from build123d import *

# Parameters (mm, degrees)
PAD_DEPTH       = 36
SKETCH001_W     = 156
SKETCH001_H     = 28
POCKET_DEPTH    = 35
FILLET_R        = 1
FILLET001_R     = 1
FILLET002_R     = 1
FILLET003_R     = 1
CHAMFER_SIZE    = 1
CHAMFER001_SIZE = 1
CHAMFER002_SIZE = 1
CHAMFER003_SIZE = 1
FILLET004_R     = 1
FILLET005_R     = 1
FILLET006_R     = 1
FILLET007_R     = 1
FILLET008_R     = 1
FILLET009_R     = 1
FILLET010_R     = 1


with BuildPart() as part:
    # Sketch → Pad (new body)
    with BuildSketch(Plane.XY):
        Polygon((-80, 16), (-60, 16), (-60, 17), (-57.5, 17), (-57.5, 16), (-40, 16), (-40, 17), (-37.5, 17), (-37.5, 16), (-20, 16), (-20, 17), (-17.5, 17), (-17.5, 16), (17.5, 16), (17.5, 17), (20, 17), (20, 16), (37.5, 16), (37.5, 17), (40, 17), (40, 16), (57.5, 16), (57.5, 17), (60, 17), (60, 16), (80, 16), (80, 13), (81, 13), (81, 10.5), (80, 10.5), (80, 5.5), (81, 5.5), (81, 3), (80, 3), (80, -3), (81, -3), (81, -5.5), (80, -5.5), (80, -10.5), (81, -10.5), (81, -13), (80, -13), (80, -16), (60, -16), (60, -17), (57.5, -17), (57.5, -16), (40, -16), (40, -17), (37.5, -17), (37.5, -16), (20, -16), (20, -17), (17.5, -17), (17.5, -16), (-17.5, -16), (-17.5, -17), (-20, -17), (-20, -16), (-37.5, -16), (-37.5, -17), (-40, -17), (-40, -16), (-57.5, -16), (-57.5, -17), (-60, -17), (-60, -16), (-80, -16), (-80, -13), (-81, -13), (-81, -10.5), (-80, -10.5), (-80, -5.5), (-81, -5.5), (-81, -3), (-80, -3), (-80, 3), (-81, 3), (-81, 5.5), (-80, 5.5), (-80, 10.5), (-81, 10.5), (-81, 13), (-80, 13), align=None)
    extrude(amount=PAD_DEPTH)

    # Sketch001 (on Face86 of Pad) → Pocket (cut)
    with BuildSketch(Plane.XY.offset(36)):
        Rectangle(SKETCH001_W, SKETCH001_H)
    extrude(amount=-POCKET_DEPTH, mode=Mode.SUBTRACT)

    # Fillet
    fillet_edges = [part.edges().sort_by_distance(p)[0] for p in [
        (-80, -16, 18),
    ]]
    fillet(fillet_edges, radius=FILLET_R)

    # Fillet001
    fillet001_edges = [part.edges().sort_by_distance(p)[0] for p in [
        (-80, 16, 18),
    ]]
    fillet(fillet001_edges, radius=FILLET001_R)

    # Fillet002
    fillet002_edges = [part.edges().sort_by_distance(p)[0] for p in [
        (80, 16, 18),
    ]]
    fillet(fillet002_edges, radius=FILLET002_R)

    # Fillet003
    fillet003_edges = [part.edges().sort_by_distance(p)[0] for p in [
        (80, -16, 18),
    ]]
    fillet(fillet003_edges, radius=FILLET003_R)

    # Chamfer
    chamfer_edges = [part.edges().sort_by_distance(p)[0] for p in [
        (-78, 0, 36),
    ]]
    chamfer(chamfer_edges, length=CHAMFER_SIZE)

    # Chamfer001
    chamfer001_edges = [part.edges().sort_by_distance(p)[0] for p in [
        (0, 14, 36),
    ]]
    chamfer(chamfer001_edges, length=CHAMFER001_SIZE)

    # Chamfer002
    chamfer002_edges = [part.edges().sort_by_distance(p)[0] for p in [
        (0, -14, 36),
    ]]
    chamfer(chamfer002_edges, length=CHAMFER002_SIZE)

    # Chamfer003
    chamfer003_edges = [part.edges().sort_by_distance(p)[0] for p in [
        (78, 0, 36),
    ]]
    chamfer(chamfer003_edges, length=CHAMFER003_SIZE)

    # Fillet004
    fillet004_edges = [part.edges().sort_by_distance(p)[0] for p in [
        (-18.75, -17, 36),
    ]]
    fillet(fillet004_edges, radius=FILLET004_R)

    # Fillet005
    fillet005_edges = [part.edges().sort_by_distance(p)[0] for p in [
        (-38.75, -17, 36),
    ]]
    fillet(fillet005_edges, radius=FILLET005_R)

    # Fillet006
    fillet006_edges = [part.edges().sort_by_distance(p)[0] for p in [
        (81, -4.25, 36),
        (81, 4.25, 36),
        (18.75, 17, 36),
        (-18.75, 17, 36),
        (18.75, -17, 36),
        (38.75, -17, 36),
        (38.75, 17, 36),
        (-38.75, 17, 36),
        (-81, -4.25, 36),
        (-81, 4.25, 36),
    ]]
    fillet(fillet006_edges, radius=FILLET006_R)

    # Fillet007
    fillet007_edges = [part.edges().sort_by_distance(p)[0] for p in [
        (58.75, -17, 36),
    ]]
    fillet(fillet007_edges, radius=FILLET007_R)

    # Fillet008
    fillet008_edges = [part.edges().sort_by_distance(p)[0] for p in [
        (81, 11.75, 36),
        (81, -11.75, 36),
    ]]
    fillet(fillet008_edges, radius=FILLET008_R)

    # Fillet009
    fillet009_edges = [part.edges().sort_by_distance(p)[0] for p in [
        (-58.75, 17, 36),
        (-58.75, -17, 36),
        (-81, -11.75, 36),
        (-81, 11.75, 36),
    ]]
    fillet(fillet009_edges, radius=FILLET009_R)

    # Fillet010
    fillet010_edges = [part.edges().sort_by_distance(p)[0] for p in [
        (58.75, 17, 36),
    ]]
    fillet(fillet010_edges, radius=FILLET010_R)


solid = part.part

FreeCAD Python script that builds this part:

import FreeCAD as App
import Part
import Sketcher

V = App.Vector
Q = App.Units.Quantity


def edges_at(feature, points):
    """Names of the edges that pass closest to the given points."""
    edges = feature.Shape.Edges
    near = lambda p: min(range(len(edges)), key=lambda i: edges[i].distToShape(Part.Vertex(*p))[0])
    return sorted({f"Edge{near(p) + 1}" for p in points})

doc = App.newDocument("Part")
params = doc.addObject("Spreadsheet::Sheet", "Params")
for row, (alias, value) in enumerate([
    ("sketch1_width", "20 mm"),
    ("sketch1_width2", "1 mm"),
    ("sketch1_width3", "35 mm"),
    ("sketch1_height", "3 mm"),
    ("sketch1_height2", "5 mm"),
    ("pad1_length", "36 mm"),
    ("sketch2_width", "156 mm"),
    ("sketch2_height", "28 mm"),
    ("pocket1_length", "35 mm"),
    ("fillet_radius", "1 mm"),
    ("fillet2_radius", "1 mm"),
    ("fillet3_radius", "1 mm"),
    ("fillet4_radius", "1 mm"),
    ("chamfer_size", "1 mm"),
    ("chamfer2_size", "1 mm"),
    ("chamfer3_size", "1 mm"),
    ("chamfer4_size", "1 mm"),
    ("fillet5_radius", "1 mm"),
    ("fillet6_radius", "1 mm"),
    ("fillet7_radius", "1 mm"),
    ("fillet8_radius", "1 mm"),
    ("fillet9_radius", "1 mm"),
    ("fillet10_radius", "1 mm"),
    ("fillet11_radius", "1 mm"),
], start=1):
    params.set(f"A{row}", alias)
    params.set(f"B{row}", "=" + value)
    params.setAlias(f"B{row}", alias)

body = doc.addObject("PartDesign::Body", "Body")

sketch1 = doc.addObject("Sketcher::SketchObject", "Sketch")
body.addObject(sketch1)
sketch1.AttachmentSupport = (doc.XY_Plane, [""])
sketch1.MapMode = "FlatFace"
sketch1.addGeometry([
    Part.LineSegment(V(-60, 16, 0), V(-80, 16, 0)),
    Part.LineSegment(V(-80, 16, 0), V(-80, 13, 0)),
    Part.LineSegment(V(-80, 13, 0), V(-81, 13, 0)),
    Part.LineSegment(V(-81, 13, 0), V(-81, 10.5, 0)),
    Part.LineSegment(V(-81, 10.5, 0), V(-80, 10.5, 0)),
    Part.LineSegment(V(-80, 10.5, 0), V(-80, 5.5, 0)),
    Part.LineSegment(V(-80, 5.5, 0), V(-81, 5.5, 0)),
    Part.LineSegment(V(-81, 5.5, 0), V(-81, 3, 0)),
    Part.LineSegment(V(-81, 3, 0), V(-80, 3, 0)),
    Part.LineSegment(V(-80, 3, 0), V(-80, -3, 0)),
    Part.LineSegment(V(-80, -3, 0), V(-81, -3, 0)),
    Part.LineSegment(V(-81, -3, 0), V(-81, -5.5, 0)),
    Part.LineSegment(V(-81, -5.5, 0), V(-80, -5.5, 0)),
    Part.LineSegment(V(-80, -5.5, 0), V(-80, -10.5, 0)),
    Part.LineSegment(V(-80, -10.5, 0), V(-81, -10.5, 0)),
    Part.LineSegment(V(-81, -10.5, 0), V(-81, -13, 0)),
    Part.LineSegment(V(-81, -13, 0), V(-80, -13, 0)),
    Part.LineSegment(V(-80, -13, 0), V(-80, -16, 0)),
    Part.LineSegment(V(-80, -16, 0), V(-60, -16, 0)),
    Part.LineSegment(V(-60, -16, 0), V(-60, -17, 0)),
    Part.LineSegment(V(-60, -17, 0), V(-57.5, -17, 0)),
    Part.LineSegment(V(-57.5, -17, 0), V(-57.5, -16, 0)),
    Part.LineSegment(V(-57.5, -16, 0), V(-40, -16, 0)),
    Part.LineSegment(V(-40, -16, 0), V(-40, -17, 0)),
    Part.LineSegment(V(-40, -17, 0), V(-37.5, -17, 0)),
    Part.LineSegment(V(-37.5, -17, 0), V(-37.5, -16, 0)),
    Part.LineSegment(V(-37.5, -16, 0), V(-20, -16, 0)),
    Part.LineSegment(V(-20, -16, 0), V(-20, -17, 0)),
    Part.LineSegment(V(-20, -17, 0), V(-17.5, -17, 0)),
    Part.LineSegment(V(-17.5, -17, 0), V(-17.5, -16, 0)),
    Part.LineSegment(V(-17.5, -16, 0), V(17.5, -16, 0)),
    Part.LineSegment(V(17.5, -16, 0), V(17.5, -17, 0)),
    Part.LineSegment(V(17.5, -17, 0), V(20, -17, 0)),
    Part.LineSegment(V(20, -17, 0), V(20, -16, 0)),
    Part.LineSegment(V(20, -16, 0), V(37.5, -16, 0)),
    Part.LineSegment(V(37.5, -16, 0), V(37.5, -17, 0)),
    Part.LineSegment(V(37.5, -17, 0), V(40, -17, 0)),
    Part.LineSegment(V(40, -17, 0), V(40, -16, 0)),
    Part.LineSegment(V(40, -16, 0), V(57.5, -16, 0)),
    Part.LineSegment(V(57.5, -16, 0), V(57.5, -17, 0)),
    Part.LineSegment(V(57.5, -17, 0), V(60, -17, 0)),
    Part.LineSegment(V(60, -17, 0), V(60, -16, 0)),
    Part.LineSegment(V(60, -16, 0), V(80, -16, 0)),
    Part.LineSegment(V(80, -16, 0), V(80, -13, 0)),
    Part.LineSegment(V(80, -13, 0), V(81, -13, 0)),
    Part.LineSegment(V(81, -13, 0), V(81, -10.5, 0)),
    Part.LineSegment(V(81, -10.5, 0), V(80, -10.5, 0)),
    Part.LineSegment(V(80, -10.5, 0), V(80, -5.5, 0)),
    Part.LineSegment(V(80, -5.5, 0), V(81, -5.5, 0)),
    Part.LineSegment(V(81, -5.5, 0), V(81, -3, 0)),
    Part.LineSegment(V(81, -3, 0), V(80, -3, 0)),
    Part.LineSegment(V(80, -3, 0), V(80, 3, 0)),
    Part.LineSegment(V(80, 3, 0), V(81, 3, 0)),
    Part.LineSegment(V(81, 3, 0), V(81, 5.5, 0)),
    Part.LineSegment(V(81, 5.5, 0), V(80, 5.5, 0)),
    Part.LineSegment(V(80, 5.5, 0), V(80, 10.5, 0)),
    Part.LineSegment(V(80, 10.5, 0), V(81, 10.5, 0)),
    Part.LineSegment(V(81, 10.5, 0), V(81, 13, 0)),
    Part.LineSegment(V(81, 13, 0), V(80, 13, 0)),
    Part.LineSegment(V(80, 13, 0), V(80, 16, 0)),
    Part.LineSegment(V(80, 16, 0), V(60, 16, 0)),
    Part.LineSegment(V(60, 16, 0), V(60, 17, 0)),
    Part.LineSegment(V(60, 17, 0), V(57.5, 17, 0)),
    Part.LineSegment(V(57.5, 17, 0), V(57.5, 16, 0)),
    Part.LineSegment(V(57.5, 16, 0), V(40, 16, 0)),
    Part.LineSegment(V(40, 16, 0), V(40, 17, 0)),
    Part.LineSegment(V(40, 17, 0), V(37.5, 17, 0)),
    Part.LineSegment(V(37.5, 17, 0), V(37.5, 16, 0)),
    Part.LineSegment(V(37.5, 16, 0), V(20, 16, 0)),
    Part.LineSegment(V(20, 16, 0), V(20, 17, 0)),
    Part.LineSegment(V(20, 17, 0), V(17.5, 17, 0)),
    Part.LineSegment(V(17.5, 17, 0), V(17.5, 16, 0)),
    Part.LineSegment(V(17.5, 16, 0), V(-17.5, 16, 0)),
    Part.LineSegment(V(-17.5, 16, 0), V(-17.5, 17, 0)),
    Part.LineSegment(V(-17.5, 17, 0), V(-20, 17, 0)),
    Part.LineSegment(V(-20, 17, 0), V(-20, 16, 0)),
    Part.LineSegment(V(-20, 16, 0), V(-37.5, 16, 0)),
    Part.LineSegment(V(-37.5, 16, 0), V(-37.5, 17, 0)),
    Part.LineSegment(V(-37.5, 17, 0), V(-40, 17, 0)),
    Part.LineSegment(V(-40, 17, 0), V(-40, 16, 0)),
    Part.LineSegment(V(-40, 16, 0), V(-57.5, 16, 0)),
    Part.LineSegment(V(-57.5, 16, 0), V(-57.5, 17, 0)),
    Part.LineSegment(V(-57.5, 17, 0), V(-60, 17, 0)),
    Part.LineSegment(V(-60, 17, 0), V(-60, 16, 0)),
], False)
sketch1.addConstraint([
    Sketcher.Constraint("Coincident", 0, 2, 1, 1),
    Sketcher.Constraint("Coincident", 1, 2, 2, 1),
    Sketcher.Constraint("Coincident", 2, 2, 3, 1),
    Sketcher.Constraint("Coincident", 3, 2, 4, 1),
    Sketcher.Constraint("Coincident", 4, 2, 5, 1),
    Sketcher.Constraint("Coincident", 5, 2, 6, 1),
    Sketcher.Constraint("Coincident", 6, 2, 7, 1),
    Sketcher.Constraint("Coincident", 7, 2, 8, 1),
    Sketcher.Constraint("Coincident", 8, 2, 9, 1),
    Sketcher.Constraint("Coincident", 9, 2, 10, 1),
    Sketcher.Constraint("Coincident", 10, 2, 11, 1),
    Sketcher.Constraint("Coincident", 11, 2, 12, 1),
    Sketcher.Constraint("Coincident", 12, 2, 13, 1),
    Sketcher.Constraint("Coincident", 13, 2, 14, 1),
    Sketcher.Constraint("Coincident", 14, 2, 15, 1),
    Sketcher.Constraint("Coincident", 15, 2, 16, 1),
    Sketcher.Constraint("Coincident", 16, 2, 17, 1),
    Sketcher.Constraint("Coincident", 17, 2, 18, 1),
    Sketcher.Constraint("Coincident", 18, 2, 19, 1),
    Sketcher.Constraint("Coincident", 19, 2, 20, 1),
    Sketcher.Constraint("Coincident", 20, 2, 21, 1),
    Sketcher.Constraint("Coincident", 21, 2, 22, 1),
    Sketcher.Constraint("Coincident", 22, 2, 23, 1),
    Sketcher.Constraint("Coincident", 23, 2, 24, 1),
    Sketcher.Constraint("Coincident", 24, 2, 25, 1),
    Sketcher.Constraint("Coincident", 25, 2, 26, 1),
    Sketcher.Constraint("Coincident", 26, 2, 27, 1),
    Sketcher.Constraint("Coincident", 27, 2, 28, 1),
    Sketcher.Constraint("Coincident", 28, 2, 29, 1),
    Sketcher.Constraint("Coincident", 29, 2, 30, 1),
    Sketcher.Constraint("Coincident", 30, 2, 31, 1),
    Sketcher.Constraint("Coincident", 31, 2, 32, 1),
    Sketcher.Constraint("Coincident", 32, 2, 33, 1),
    Sketcher.Constraint("Coincident", 33, 2, 34, 1),
    Sketcher.Constraint("Coincident", 34, 2, 35, 1),
    Sketcher.Constraint("Coincident", 35, 2, 36, 1),
    Sketcher.Constraint("Coincident", 36, 2, 37, 1),
    Sketcher.Constraint("Coincident", 37, 2, 38, 1),
    Sketcher.Constraint("Coincident", 38, 2, 39, 1),
    Sketcher.Constraint("Coincident", 39, 2, 40, 1),
    Sketcher.Constraint("Coincident", 40, 2, 41, 1),
    Sketcher.Constraint("Coincident", 41, 2, 42, 1),
    Sketcher.Constraint("Coincident", 42, 2, 43, 1),
    Sketcher.Constraint("Coincident", 43, 2, 44, 1),
    Sketcher.Constraint("Coincident", 44, 2, 45, 1),
    Sketcher.Constraint("Coincident", 45, 2, 46, 1),
    Sketcher.Constraint("Coincident", 46, 2, 47, 1),
    Sketcher.Constraint("Coincident", 47, 2, 48, 1),
    Sketcher.Constraint("Coincident", 48, 2, 49, 1),
    Sketcher.Constraint("Coincident", 49, 2, 50, 1),
    Sketcher.Constraint("Coincident", 50, 2, 51, 1),
    Sketcher.Constraint("Coincident", 51, 2, 52, 1),
    Sketcher.Constraint("Coincident", 52, 2, 53, 1),
    Sketcher.Constraint("Coincident", 53, 2, 54, 1),
    Sketcher.Constraint("Coincident", 54, 2, 55, 1),
    Sketcher.Constraint("Coincident", 55, 2, 56, 1),
    Sketcher.Constraint("Coincident", 56, 2, 57, 1),
    Sketcher.Constraint("Coincident", 57, 2, 58, 1),
    Sketcher.Constraint("Coincident", 58, 2, 59, 1),
    Sketcher.Constraint("Coincident", 59, 2, 60, 1),
    Sketcher.Constraint("Coincident", 60, 2, 61, 1),
    Sketcher.Constraint("Coincident", 61, 2, 62, 1),
    Sketcher.Constraint("Coincident", 62, 2, 63, 1),
    Sketcher.Constraint("Coincident", 63, 2, 64, 1),
    Sketcher.Constraint("Coincident", 64, 2, 65, 1),
    Sketcher.Constraint("Coincident", 65, 2, 66, 1),
    Sketcher.Constraint("Coincident", 66, 2, 67, 1),
    Sketcher.Constraint("Coincident", 67, 2, 68, 1),
    Sketcher.Constraint("Coincident", 68, 2, 69, 1),
    Sketcher.Constraint("Coincident", 69, 2, 70, 1),
    Sketcher.Constraint("Coincident", 70, 2, 71, 1),
    Sketcher.Constraint("Coincident", 71, 2, 72, 1),
    Sketcher.Constraint("Coincident", 72, 2, 73, 1),
    Sketcher.Constraint("Coincident", 73, 2, 74, 1),
    Sketcher.Constraint("Coincident", 74, 2, 75, 1),
    Sketcher.Constraint("Coincident", 75, 2, 76, 1),
    Sketcher.Constraint("Coincident", 76, 2, 77, 1),
    Sketcher.Constraint("Coincident", 77, 2, 78, 1),
    Sketcher.Constraint("Coincident", 78, 2, 79, 1),
    Sketcher.Constraint("Coincident", 79, 2, 80, 1),
    Sketcher.Constraint("Coincident", 80, 2, 81, 1),
    Sketcher.Constraint("Coincident", 81, 2, 82, 1),
    Sketcher.Constraint("Coincident", 82, 2, 83, 1),
    Sketcher.Constraint("Coincident", 83, 2, 0, 1),
    Sketcher.Constraint("Horizontal", 0),
    Sketcher.Constraint("Vertical", 1),
    Sketcher.Constraint("Horizontal", 2),
    Sketcher.Constraint("Vertical", 3),
    Sketcher.Constraint("Horizontal", 4),
    Sketcher.Constraint("Vertical", 5),
    Sketcher.Constraint("Horizontal", 6),
    Sketcher.Constraint("Vertical", 7),
    Sketcher.Constraint("Horizontal", 8),
    Sketcher.Constraint("Vertical", 9),
    Sketcher.Constraint("Horizontal", 10),
    Sketcher.Constraint("Vertical", 11),
    Sketcher.Constraint("Horizontal", 12),
    Sketcher.Constraint("Vertical", 13),
    Sketcher.Constraint("Horizontal", 14),
    Sketcher.Constraint("Vertical", 15),
    Sketcher.Constraint("Horizontal", 16),
    Sketcher.Constraint("Vertical", 17),
    Sketcher.Constraint("Horizontal", 18),
    Sketcher.Constraint("Vertical", 19),
    Sketcher.Constraint("Horizontal", 20),
    Sketcher.Constraint("Vertical", 21),
    Sketcher.Constraint("Horizontal", 22),
    Sketcher.Constraint("Vertical", 23),
    Sketcher.Constraint("Horizontal", 24),
    Sketcher.Constraint("Vertical", 25),
    Sketcher.Constraint("Horizontal", 26),
    Sketcher.Constraint("Vertical", 27),
    Sketcher.Constraint("Horizontal", 28),
    Sketcher.Constraint("Vertical", 29),
    Sketcher.Constraint("Horizontal", 30),
    Sketcher.Constraint("Vertical", 31),
    Sketcher.Constraint("Horizontal", 32),
    Sketcher.Constraint("Vertical", 33),
    Sketcher.Constraint("Horizontal", 34),
    Sketcher.Constraint("Vertical", 35),
    Sketcher.Constraint("Horizontal", 36),
    Sketcher.Constraint("Vertical", 37),
    Sketcher.Constraint("Horizontal", 38),
    Sketcher.Constraint("Vertical", 39),
    Sketcher.Constraint("Horizontal", 40),
    Sketcher.Constraint("Vertical", 41),
    Sketcher.Constraint("Horizontal", 42),
    Sketcher.Constraint("Vertical", 43),
    Sketcher.Constraint("Horizontal", 44),
    Sketcher.Constraint("Vertical", 45),
    Sketcher.Constraint("Horizontal", 46),
    Sketcher.Constraint("Vertical", 47),
    Sketcher.Constraint("Horizontal", 48),
    Sketcher.Constraint("Vertical", 49),
    Sketcher.Constraint("Horizontal", 50),
    Sketcher.Constraint("Vertical", 51),
    Sketcher.Constraint("Horizontal", 52),
    Sketcher.Constraint("Vertical", 53),
    Sketcher.Constraint("Horizontal", 54),
    Sketcher.Constraint("Vertical", 55),
    Sketcher.Constraint("Horizontal", 56),
    Sketcher.Constraint("Vertical", 57),
    Sketcher.Constraint("Horizontal", 58),
    Sketcher.Constraint("Vertical", 59),
    Sketcher.Constraint("Horizontal", 60),
    Sketcher.Constraint("Vertical", 61),
    Sketcher.Constraint("Horizontal", 62),
    Sketcher.Constraint("Vertical", 63),
    Sketcher.Constraint("Horizontal", 64),
    Sketcher.Constraint("Vertical", 65),
    Sketcher.Constraint("Horizontal", 66),
    Sketcher.Constraint("Vertical", 67),
    Sketcher.Constraint("Horizontal", 68),
    Sketcher.Constraint("Vertical", 69),
    Sketcher.Constraint("Horizontal", 70),
    Sketcher.Constraint("Vertical", 71),
    Sketcher.Constraint("Horizontal", 72),
    Sketcher.Constraint("Vertical", 73),
    Sketcher.Constraint("Horizontal", 74),
    Sketcher.Constraint("Vertical", 75),
    Sketcher.Constraint("Horizontal", 76),
    Sketcher.Constraint("Vertical", 77),
    Sketcher.Constraint("Horizontal", 78),
    Sketcher.Constraint("Vertical", 79),
    Sketcher.Constraint("Horizontal", 80),
    Sketcher.Constraint("Vertical", 81),
    Sketcher.Constraint("Horizontal", 82),
    Sketcher.Constraint("Vertical", 83),
    Sketcher.Constraint("Symmetric", 0, 2, 42, 2, -1, 1),
    Sketcher.Constraint("Symmetric", 2, 2, 44, 2, -1, 1),
    Sketcher.Constraint("Symmetric", 4, 2, 46, 2, -1, 1),
    Sketcher.Constraint("Symmetric", 6, 2, 48, 2, -1, 1),
    Sketcher.Constraint("Symmetric", 8, 2, 50, 2, -1, 1),
    Sketcher.Constraint("Symmetric", 10, 2, 52, 2, -1, 1),
    Sketcher.Constraint("Symmetric", 12, 2, 54, 2, -1, 1),
    Sketcher.Constraint("Symmetric", 14, 2, 56, 2, -1, 1),
    Sketcher.Constraint("Symmetric", 16, 2, 58, 2, -1, 1),
    Sketcher.Constraint("Symmetric", 18, 2, 60, 2, -1, 1),
    Sketcher.Constraint("Symmetric", 20, 2, 62, 2, -1, 1),
    Sketcher.Constraint("Symmetric", 22, 2, 64, 2, -1, 1),
    Sketcher.Constraint("Symmetric", 24, 2, 66, 2, -1, 1),
    Sketcher.Constraint("Symmetric", 26, 2, 68, 2, -1, 1),
    Sketcher.Constraint("Symmetric", 28, 2, 70, 2, -1, 1),
    Sketcher.Constraint("Symmetric", 30, 2, 72, 2, -1, 1),
    Sketcher.Constraint("Symmetric", 32, 2, 74, 2, -1, 1),
    Sketcher.Constraint("Symmetric", 34, 2, 76, 2, -1, 1),
    Sketcher.Constraint("Symmetric", 36, 2, 78, 2, -1, 1),
    Sketcher.Constraint("Symmetric", 38, 2, 80, 2, -1, 1),
    Sketcher.Constraint("Symmetric", 40, 2, 82, 2, -1, 1),
    Sketcher.Constraint("Symmetric", 28, 2, 31, 2, -2),
    Sketcher.Constraint("Symmetric", 26, 2, 33, 2, -2),
    Sketcher.Constraint("Symmetric", 24, 2, 35, 2, -2),
    Sketcher.Constraint("Symmetric", 22, 2, 37, 2, -2),
    Sketcher.Constraint("Symmetric", 20, 2, 39, 2, -2),
    Sketcher.Constraint("Symmetric", 18, 2, 41, 2, -2),
    Sketcher.Constraint("Symmetric", 16, 2, 43, 2, -2),
    Sketcher.Constraint("Symmetric", 14, 2, 45, 2, -2),
    Sketcher.Constraint("Symmetric", 12, 2, 47, 2, -2),
    Sketcher.Constraint("Symmetric", 10, 2, 49, 2, -2),
    Sketcher.Constraint("Horizontal", 18, 2, 21, 2),
    Sketcher.Constraint("Horizontal", 20, 2, 23, 2),
    Sketcher.Constraint("Horizontal", 22, 2, 25, 2),
    Sketcher.Constraint("Horizontal", 24, 2, 27, 2),
    Sketcher.Constraint("Horizontal", 26, 2, 29, 2),
    Sketcher.Constraint("Vertical", 1, 2, 4, 2),
    Sketcher.Constraint("Vertical", 3, 2, 6, 2),
    Sketcher.Constraint("Vertical", 5, 2, 8, 2),
    Sketcher.Constraint("Equal", 20, 24),
    Sketcher.Constraint("Equal", 22, 26),
    Sketcher.Constraint("Equal", 24, 28),
    Sketcher.Constraint("Equal", 82, 3),
    Sketcher.Constraint("Equal", 3, 7),
    Sketcher.Constraint("Equal", 58, 19),
    Sketcher.Constraint("DistanceX", 0, 2, 0, 1, Q("20 mm")),
    Sketcher.Constraint("DistanceX", 2, 2, 2, 1, Q("1 mm")),
    Sketcher.Constraint("DistanceX", 30, 1, 30, 2, Q("35 mm")),
    Sketcher.Constraint("DistanceY", 1, 2, 1, 1, Q("3 mm")),
    Sketcher.Constraint("DistanceY", 5, 2, 5, 1, Q("5 mm")),
    Sketcher.Constraint("DistanceY", 9, 2, 9, 1, Q("6 mm")),
    Sketcher.Constraint("DistanceX", 20, 1, 20, 2, Q("2.5 mm")),
    Sketcher.Constraint("DistanceX", 22, 1, 22, 2, Q("17.5 mm")),
])
sketch1.setExpression("Constraints[213]", "Params.sketch1_width")
sketch1.setExpression("Constraints[214]", "Params.sketch1_width2")
sketch1.setExpression("Constraints[215]", "Params.sketch1_width3")
sketch1.setExpression("Constraints[216]", "Params.sketch1_height")
sketch1.setExpression("Constraints[217]", "Params.sketch1_height2")
pad1 = doc.addObject("PartDesign::Pad", "Pad")
body.addObject(pad1)
pad1.Profile = sketch1
pad1.setExpression("Length", "Params.pad1_length")

sketch2 = doc.addObject("Sketcher::SketchObject", "Sketch001")
body.addObject(sketch2)
sketch2.AttachmentSupport = (doc.XY_Plane, [""])
sketch2.MapMode = "FlatFace"
sketch2.AttachmentOffset = App.Placement(V(0, 0, 36), App.Rotation())
sketch2.addGeometry([
    Part.LineSegment(V(-78, 14, 0), V(-78, -14, 0)),
    Part.LineSegment(V(-78, -14, 0), V(78, -14, 0)),
    Part.LineSegment(V(78, -14, 0), V(78, 14, 0)),
    Part.LineSegment(V(78, 14, 0), V(-78, 14, 0)),
], False)
sketch2.addConstraint([
    Sketcher.Constraint("Coincident", 0, 2, 1, 1),
    Sketcher.Constraint("Coincident", 1, 2, 2, 1),
    Sketcher.Constraint("Coincident", 2, 2, 3, 1),
    Sketcher.Constraint("Coincident", 3, 2, 0, 1),
    Sketcher.Constraint("Vertical", 0),
    Sketcher.Constraint("Horizontal", 1),
    Sketcher.Constraint("Vertical", 2),
    Sketcher.Constraint("Horizontal", 3),
    Sketcher.Constraint("Symmetric", 0, 2, 2, 2, -1, 1),
    Sketcher.Constraint("DistanceX", 1, 1, 1, 2, Q("156 mm")),
    Sketcher.Constraint("DistanceY", 0, 2, 0, 1, Q("28 mm")),
])
sketch2.setExpression("Constraints[9]", "Params.sketch2_width")
sketch2.setExpression("Constraints[10]", "Params.sketch2_height")
pocket1 = doc.addObject("PartDesign::Pocket", "Pocket")
body.addObject(pocket1)
pocket1.Profile = sketch2
pocket1.setExpression("Length", "Params.pocket1_length")
doc.recompute()

fillet = doc.addObject("PartDesign::Fillet", "Fillet")
body.addObject(fillet)
fillet.Base = (pocket1, edges_at(pocket1, [(-80, -16, 18)]))
fillet.setExpression("Radius", "Params.fillet_radius")
doc.recompute()

fillet2 = doc.addObject("PartDesign::Fillet", "Fillet001")
body.addObject(fillet2)
fillet2.Base = (fillet, edges_at(fillet, [(-80, 16, 18)]))
fillet2.setExpression("Radius", "Params.fillet2_radius")
doc.recompute()

fillet3 = doc.addObject("PartDesign::Fillet", "Fillet002")
body.addObject(fillet3)
fillet3.Base = (fillet2, edges_at(fillet2, [(80, 16, 18)]))
fillet3.setExpression("Radius", "Params.fillet3_radius")
doc.recompute()

fillet4 = doc.addObject("PartDesign::Fillet", "Fillet003")
body.addObject(fillet4)
fillet4.Base = (fillet3, edges_at(fillet3, [(80, -16, 18)]))
fillet4.setExpression("Radius", "Params.fillet4_radius")
doc.recompute()

chamfer = doc.addObject("PartDesign::Chamfer", "Chamfer")
body.addObject(chamfer)
chamfer.Base = (fillet4, edges_at(fillet4, [(-78, 0, 36)]))
chamfer.setExpression("Size", "Params.chamfer_size")
doc.recompute()

chamfer2 = doc.addObject("PartDesign::Chamfer", "Chamfer001")
body.addObject(chamfer2)
chamfer2.Base = (chamfer, edges_at(chamfer, [(-0.5, 14, 36)]))
chamfer2.setExpression("Size", "Params.chamfer2_size")
doc.recompute()

chamfer3 = doc.addObject("PartDesign::Chamfer", "Chamfer002")
body.addObject(chamfer3)
chamfer3.Base = (chamfer2, edges_at(chamfer2, [(-0.5, -14, 36)]))
chamfer3.setExpression("Size", "Params.chamfer3_size")
doc.recompute()

chamfer4 = doc.addObject("PartDesign::Chamfer", "Chamfer003")
body.addObject(chamfer4)
chamfer4.Base = (chamfer3, edges_at(chamfer3, [(78, 0, 36)]))
chamfer4.setExpression("Size", "Params.chamfer4_size")
doc.recompute()

fillet5 = doc.addObject("PartDesign::Fillet", "Fillet004")
body.addObject(fillet5)
fillet5.Base = (chamfer4, edges_at(chamfer4, [(-18.75, -17, 36)]))
fillet5.setExpression("Radius", "Params.fillet5_radius")
doc.recompute()

fillet6 = doc.addObject("PartDesign::Fillet", "Fillet005")
body.addObject(fillet6)
fillet6.Base = (fillet5, edges_at(fillet5, [(-38.75, -17, 36)]))
fillet6.setExpression("Radius", "Params.fillet6_radius")
doc.recompute()

fillet7 = doc.addObject("PartDesign::Fillet", "Fillet006")
body.addObject(fillet7)
fillet7.Base = (fillet6, edges_at(fillet6, [
    (81, -4.25, 36),
    (81, 4.25, 36),
    (18.75, 17, 36),
    (-18.75, 17, 36),
    (18.75, -17, 36),
    (38.75, -17, 36),
    (38.75, 17, 36),
    (-38.75, 17, 36),
    (-81, -4.25, 36),
    (-81, 4.25, 36),
]))
fillet7.setExpression("Radius", "Params.fillet7_radius")
doc.recompute()

fillet8 = doc.addObject("PartDesign::Fillet", "Fillet007")
body.addObject(fillet8)
fillet8.Base = (fillet7, edges_at(fillet7, [(58.75, -17, 36)]))
fillet8.setExpression("Radius", "Params.fillet8_radius")
doc.recompute()

fillet9 = doc.addObject("PartDesign::Fillet", "Fillet008")
body.addObject(fillet9)
fillet9.Base = (fillet8, edges_at(fillet8, [(81, 11.75, 36), (81, -11.75, 36)]))
fillet9.setExpression("Radius", "Params.fillet9_radius")
doc.recompute()

fillet10 = doc.addObject("PartDesign::Fillet", "Fillet009")
body.addObject(fillet10)
fillet10.Base = (fillet9, edges_at(fillet9, [
    (-58.75, 17, 36),
    (-58.75, -17, 36),
    (-81, -11.75, 36),
    (-81, 11.75, 36),
]))
fillet10.setExpression("Radius", "Params.fillet10_radius")
doc.recompute()

fillet11 = doc.addObject("PartDesign::Fillet", "Fillet010")
body.addObject(fillet11)
fillet11.Base = (fillet10, edges_at(fillet10, [(58.75, 17, 36)]))
fillet11.setExpression("Radius", "Params.fillet11_radius")

doc.recompute()
